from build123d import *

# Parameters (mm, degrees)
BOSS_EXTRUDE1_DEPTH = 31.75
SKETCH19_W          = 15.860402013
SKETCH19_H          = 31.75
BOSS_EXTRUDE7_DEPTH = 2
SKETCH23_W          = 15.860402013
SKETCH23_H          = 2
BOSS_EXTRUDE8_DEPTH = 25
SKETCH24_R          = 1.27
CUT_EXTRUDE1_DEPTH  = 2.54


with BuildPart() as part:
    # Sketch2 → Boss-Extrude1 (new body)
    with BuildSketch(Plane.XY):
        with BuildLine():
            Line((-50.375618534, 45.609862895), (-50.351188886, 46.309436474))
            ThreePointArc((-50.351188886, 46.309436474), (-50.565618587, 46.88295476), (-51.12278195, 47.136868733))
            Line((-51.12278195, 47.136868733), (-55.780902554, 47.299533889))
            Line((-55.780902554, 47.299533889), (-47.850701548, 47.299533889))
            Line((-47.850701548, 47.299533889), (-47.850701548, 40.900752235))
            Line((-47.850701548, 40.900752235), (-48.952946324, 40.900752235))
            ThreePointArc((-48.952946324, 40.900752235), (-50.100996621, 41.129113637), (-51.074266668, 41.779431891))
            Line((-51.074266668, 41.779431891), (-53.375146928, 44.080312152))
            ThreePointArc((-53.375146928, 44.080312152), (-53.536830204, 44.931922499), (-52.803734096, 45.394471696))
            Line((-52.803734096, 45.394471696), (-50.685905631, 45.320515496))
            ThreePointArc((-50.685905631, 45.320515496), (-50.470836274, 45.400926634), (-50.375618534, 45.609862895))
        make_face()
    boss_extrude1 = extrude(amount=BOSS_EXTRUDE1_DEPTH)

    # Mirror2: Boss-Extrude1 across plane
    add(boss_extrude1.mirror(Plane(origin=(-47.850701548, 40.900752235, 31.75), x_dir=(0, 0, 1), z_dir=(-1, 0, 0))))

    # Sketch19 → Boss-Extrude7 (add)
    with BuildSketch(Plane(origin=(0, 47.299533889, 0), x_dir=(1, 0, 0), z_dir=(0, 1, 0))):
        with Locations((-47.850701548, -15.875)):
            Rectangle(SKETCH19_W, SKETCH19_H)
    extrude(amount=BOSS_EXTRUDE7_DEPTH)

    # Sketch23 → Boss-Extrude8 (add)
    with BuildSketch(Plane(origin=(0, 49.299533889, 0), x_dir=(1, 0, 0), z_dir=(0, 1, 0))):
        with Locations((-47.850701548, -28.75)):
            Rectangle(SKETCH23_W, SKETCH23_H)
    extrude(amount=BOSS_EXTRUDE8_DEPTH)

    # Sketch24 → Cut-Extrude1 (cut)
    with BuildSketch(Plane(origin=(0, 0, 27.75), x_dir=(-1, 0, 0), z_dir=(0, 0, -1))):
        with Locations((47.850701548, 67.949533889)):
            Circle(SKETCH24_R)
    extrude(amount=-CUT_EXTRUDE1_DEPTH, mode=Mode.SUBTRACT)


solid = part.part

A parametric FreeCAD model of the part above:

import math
import FreeCAD as App
import Part
import Sketcher

V = App.Vector
Q = App.Units.Quantity

doc = App.newDocument("Part")
body = doc.addObject("PartDesign::Body", "Body")

# Sketch on XY plane
sketch1 = doc.addObject("Sketcher::SketchObject", "Sketch")
body.addObject(sketch1)
sketch1.AttachmentSupport = (doc.XY_Plane, [""])
sketch1.MapMode = "FlatFace"
sketch1.addGeometry([
    Part.LineSegment(V(-50.351189, 46.309436, 0), V(-50.375619, 45.609863, 0)),  # 0
    Part.ArcOfCircle(Part.Circle(V(-50.675436, 45.620333, 0), V(0, 0, 1), 0.3), math.radians(-92), math.radians(-2)),  # 1
    Part.LineSegment(V(-50.685906, 45.320515, 0), V(-52.803734, 45.394472, 0)),  # 2
    Part.ArcOfCircle(Part.Circle(V(-52.83061, 44.624849, 0), V(0, 0, 1), 0.770092), math.radians(88), math.radians(225)),  # 3
    Part.LineSegment(V(-53.375147, 44.080312, 0), V(-51.074267, 41.779432, 0)),  # 4
    Part.ArcOfCircle(Part.Circle(V(-48.952946, 43.900752, 0), V(0, 0, 1), 3), math.radians(-135), math.radians(-90)),  # 5
    Part.LineSegment(V(-48.952946, 40.900752, 0), V(-47.850702, 40.900752, 0)),  # 6
    Part.LineSegment(V(-47.850702, 40.900752, 0), V(-47.850702, 47.299534, 0)),  # 7
    Part.LineSegment(V(-47.850702, 47.299534, 0), V(-55.780903, 47.299534, 0)),  # 8
    Part.LineSegment(V(-55.780903, 47.299534, 0), V(-51.122782, 47.136869, 0)),  # 9
    Part.ArcOfCircle(Part.Circle(V(-51.150702, 46.337356, 0), V(0, 0, 1), 0.8), math.radians(-2), math.radians(88)),  # 10
], False)
sketch1.addConstraint([
    Sketcher.Constraint("Tangent", 0, 2, 1, 2),
    Sketcher.Constraint("Tangent", 1, 1, 2, 1),
    Sketcher.Constraint("Tangent", 2, 2, 3, 1),
    Sketcher.Constraint("Tangent", 3, 2, 4, 1),
    Sketcher.Constraint("Tangent", 4, 2, 5, 1),
    Sketcher.Constraint("Tangent", 5, 2, 6, 1),
    Sketcher.Constraint("Coincident", 6, 2, 7, 1),
    Sketcher.Constraint("Coincident", 7, 2, 8, 1),
    Sketcher.Constraint("Coincident", 8, 2, 9, 1),
    Sketcher.Constraint("Tangent", 9, 2, 10, 2),
    Sketcher.Constraint("Tangent", 10, 1, 0, 1),
    Sketcher.Constraint("Horizontal", 6),
    Sketcher.Constraint("Vertical", 7),
    Sketcher.Constraint("Horizontal", 8),
    Sketcher.Constraint("Perpendicular", 0, 2),
    Sketcher.Constraint("Parallel", 2, 9),
    Sketcher.Constraint("Radius", 5, Q("3 mm")),
    Sketcher.Constraint("Radius", 1, Q("0.3 mm")),
    Sketcher.Constraint("Radius", 10, Q("0.8 mm")),
    Sketcher.Constraint("Angle", 0, Q("-92 deg")),
    Sketcher.Constraint("Angle", 4, Q("-45 deg")),
    Sketcher.Constraint("Distance", 0, Q("0.7 mm")),
    Sketcher.Constraint("DistanceX", 10, 3, 7, 2, Q("3.3 mm")),
    Sketcher.Constraint("Radius", 3, Q("0.770092 mm")),
    Sketcher.Constraint("DistanceX", 8, 2, 8, 1, Q("7.930201 mm")),
    Sketcher.Constraint("DistanceY", 7, 1, 7, 2, Q("6.398782 mm")),
    Sketcher.Constraint("DistanceX", 10, 3, -1, 1, Q("51.150702 mm")),
    Sketcher.Constraint("DistanceX", 2, 2, 1, 3, Q("2.128298 mm")),
    Sketcher.Constraint("DistanceY", -1, 1, 3, 3, Q("44.624849 mm")),
])
pad1 = doc.addObject("PartDesign::Pad", "Pad")
body.addObject(pad1)
pad1.Profile = sketch1
pad1.Length = 31.75
doc.recompute()

datumplane = doc.addObject("PartDesign::Plane", "DatumPlane")
body.addObject(datumplane)
datumplane.AttachmentSupport = (doc.YZ_Plane, [""])
datumplane.MapMode = "FlatFace"
datumplane.AttachmentOffset = App.Placement(V(0, 0, -47.850702), App.Rotation())
mirrored = doc.addObject("PartDesign::Mirrored", "Mirrored")
body.addObject(mirrored)
mirrored.Originals = [pad1]
mirrored.MirrorPlane = (datumplane, [""])
body.Tip = mirrored

# Sketch on XZ plane
sketch2 = doc.addObject("Sketcher::SketchObject", "Sketch001")
body.addObject(sketch2)
sketch2.AttachmentSupport = (doc.XZ_Plane, [""])
sketch2.MapMode = "FlatFace"
sketch2.AttachmentOffset = App.Placement(V(0, 0, -47.299534), App.Rotation())
sketch2.addGeometry([
    Part.LineSegment(V(-55.780903, 0, 0), V(-55.780903, 31.75, 0)),
    Part.LineSegment(V(-55.780903, 31.75, 0), V(-39.920501, 31.75, 0)),
    Part.LineSegment(V(-39.920501, 31.75, 0), V(-39.920501, 0, 0)),
    Part.LineSegment(V(-39.920501, 0, 0), V(-55.780903, 0, 0)),
], False)
sketch2.addConstraint([
    Sketcher.Constraint("Coincident", 0, 2, 1, 1),
    Sketcher.Constraint("Coincident", 1, 2, 2, 1),
    Sketcher.Constraint("Coincident", 2, 2, 3, 1),
    Sketcher.Constraint("Coincident", 3, 2, 0, 1),
    Sketcher.Constraint("Vertical", 0),
    Sketcher.Constraint("Horizontal", 1),
    Sketcher.Constraint("Vertical", 2),
    Sketcher.Constraint("Horizontal", 3),
    Sketcher.Constraint("PointOnObject", 2, 2, -1),
    Sketcher.Constraint("DistanceY", 0, 1, 0, 2, Q("31.75 mm")),
    Sketcher.Constraint("DistanceX", 1, 2, -1, 1, Q("39.920501 mm")),
    Sketcher.Constraint("DistanceX", 1, 1, 1, 2, Q("15.860402 mm")),
])
pad2 = doc.addObject("PartDesign::Pad", "Pad001")
body.addObject(pad2)
pad2.Profile = sketch2
pad2.Length = 2
pad2.Reversed = True

# Sketch on XZ plane
sketch3 = doc.addObject("Sketcher::SketchObject", "Sketch002")
body.addObject(sketch3)
sketch3.AttachmentSupport = (doc.XZ_Plane, [""])
sketch3.MapMode = "FlatFace"
sketch3.AttachmentOffset = App.Placement(V(0, 0, -49.299534), App.Rotation())
sketch3.addGeometry([
    Part.LineSegment(V(-55.780903, 27.75, 0), V(-55.780903, 29.75, 0)),
    Part.LineSegment(V(-55.780903, 29.75, 0), V(-39.920501, 29.75, 0)),
    Part.LineSegment(V(-39.920501, 29.75, 0), V(-39.920501, 27.75, 0)),
    Part.LineSegment(V(-39.920501, 27.75, 0), V(-55.780903, 27.75, 0)),
], False)
sketch3.addConstraint([
    Sketcher.Constraint("Coincident", 0, 2, 1, 1),
    Sketcher.Constraint("Coincident", 1, 2, 2, 1),
    Sketcher.Constraint("Coincident", 2, 2, 3, 1),
    Sketcher.Constraint("Coincident", 3, 2, 0, 1),
    Sketcher.Constraint("Vertical", 0),
    Sketcher.Constraint("Horizontal", 1),
    Sketcher.Constraint("Vertical", 2),
    Sketcher.Constraint("Horizontal", 3),
    Sketcher.Constraint("DistanceY", 0, 1, 0, 2, Q("2 mm")),
    Sketcher.Constraint("DistanceY", -1, 1, 0, 2, Q("29.75 mm")),
    Sketcher.Constraint("DistanceX", 1, 2, -1, 1, Q("39.920501 mm")),
    Sketcher.Constraint("DistanceX", 1, 1, 1, 2, Q("15.860402 mm")),
])
pad3 = doc.addObject("PartDesign::Pad", "Pad002")
body.addObject(pad3)
pad3.Profile = sketch3
pad3.Length = 25
pad3.Reversed = True

# Sketch on XY plane
sketch4 = doc.addObject("Sketcher::SketchObject", "Sketch003")
body.addObject(sketch4)
sketch4.AttachmentSupport = (doc.XY_Plane, [""])
sketch4.MapMode = "FlatFace"
sketch4.AttachmentOffset = App.Placement(V(0, 0, 27.75), App.Rotation())
sketch4.addGeometry(Part.Circle(V(-47.850702, 67.949534, 0), V(0, 0, 1), 1.27), False)
sketch4.addConstraint([
    Sketcher.Constraint("Diameter", 0, Q("2.54 mm")),
    Sketcher.Constraint("DistanceX", 0, 3, -1, 1, Q("47.850702 mm")),
    Sketcher.Constraint("DistanceY", -1, 1, 0, 3, Q("67.949534 mm")),
])
pocket1 = doc.addObject("PartDesign::Pocket", "Pocket")
body.addObject(pocket1)
pocket1.Profile = sketch4
pocket1.Length = 2.54
pocket1.Reversed = True

doc.recompute()
